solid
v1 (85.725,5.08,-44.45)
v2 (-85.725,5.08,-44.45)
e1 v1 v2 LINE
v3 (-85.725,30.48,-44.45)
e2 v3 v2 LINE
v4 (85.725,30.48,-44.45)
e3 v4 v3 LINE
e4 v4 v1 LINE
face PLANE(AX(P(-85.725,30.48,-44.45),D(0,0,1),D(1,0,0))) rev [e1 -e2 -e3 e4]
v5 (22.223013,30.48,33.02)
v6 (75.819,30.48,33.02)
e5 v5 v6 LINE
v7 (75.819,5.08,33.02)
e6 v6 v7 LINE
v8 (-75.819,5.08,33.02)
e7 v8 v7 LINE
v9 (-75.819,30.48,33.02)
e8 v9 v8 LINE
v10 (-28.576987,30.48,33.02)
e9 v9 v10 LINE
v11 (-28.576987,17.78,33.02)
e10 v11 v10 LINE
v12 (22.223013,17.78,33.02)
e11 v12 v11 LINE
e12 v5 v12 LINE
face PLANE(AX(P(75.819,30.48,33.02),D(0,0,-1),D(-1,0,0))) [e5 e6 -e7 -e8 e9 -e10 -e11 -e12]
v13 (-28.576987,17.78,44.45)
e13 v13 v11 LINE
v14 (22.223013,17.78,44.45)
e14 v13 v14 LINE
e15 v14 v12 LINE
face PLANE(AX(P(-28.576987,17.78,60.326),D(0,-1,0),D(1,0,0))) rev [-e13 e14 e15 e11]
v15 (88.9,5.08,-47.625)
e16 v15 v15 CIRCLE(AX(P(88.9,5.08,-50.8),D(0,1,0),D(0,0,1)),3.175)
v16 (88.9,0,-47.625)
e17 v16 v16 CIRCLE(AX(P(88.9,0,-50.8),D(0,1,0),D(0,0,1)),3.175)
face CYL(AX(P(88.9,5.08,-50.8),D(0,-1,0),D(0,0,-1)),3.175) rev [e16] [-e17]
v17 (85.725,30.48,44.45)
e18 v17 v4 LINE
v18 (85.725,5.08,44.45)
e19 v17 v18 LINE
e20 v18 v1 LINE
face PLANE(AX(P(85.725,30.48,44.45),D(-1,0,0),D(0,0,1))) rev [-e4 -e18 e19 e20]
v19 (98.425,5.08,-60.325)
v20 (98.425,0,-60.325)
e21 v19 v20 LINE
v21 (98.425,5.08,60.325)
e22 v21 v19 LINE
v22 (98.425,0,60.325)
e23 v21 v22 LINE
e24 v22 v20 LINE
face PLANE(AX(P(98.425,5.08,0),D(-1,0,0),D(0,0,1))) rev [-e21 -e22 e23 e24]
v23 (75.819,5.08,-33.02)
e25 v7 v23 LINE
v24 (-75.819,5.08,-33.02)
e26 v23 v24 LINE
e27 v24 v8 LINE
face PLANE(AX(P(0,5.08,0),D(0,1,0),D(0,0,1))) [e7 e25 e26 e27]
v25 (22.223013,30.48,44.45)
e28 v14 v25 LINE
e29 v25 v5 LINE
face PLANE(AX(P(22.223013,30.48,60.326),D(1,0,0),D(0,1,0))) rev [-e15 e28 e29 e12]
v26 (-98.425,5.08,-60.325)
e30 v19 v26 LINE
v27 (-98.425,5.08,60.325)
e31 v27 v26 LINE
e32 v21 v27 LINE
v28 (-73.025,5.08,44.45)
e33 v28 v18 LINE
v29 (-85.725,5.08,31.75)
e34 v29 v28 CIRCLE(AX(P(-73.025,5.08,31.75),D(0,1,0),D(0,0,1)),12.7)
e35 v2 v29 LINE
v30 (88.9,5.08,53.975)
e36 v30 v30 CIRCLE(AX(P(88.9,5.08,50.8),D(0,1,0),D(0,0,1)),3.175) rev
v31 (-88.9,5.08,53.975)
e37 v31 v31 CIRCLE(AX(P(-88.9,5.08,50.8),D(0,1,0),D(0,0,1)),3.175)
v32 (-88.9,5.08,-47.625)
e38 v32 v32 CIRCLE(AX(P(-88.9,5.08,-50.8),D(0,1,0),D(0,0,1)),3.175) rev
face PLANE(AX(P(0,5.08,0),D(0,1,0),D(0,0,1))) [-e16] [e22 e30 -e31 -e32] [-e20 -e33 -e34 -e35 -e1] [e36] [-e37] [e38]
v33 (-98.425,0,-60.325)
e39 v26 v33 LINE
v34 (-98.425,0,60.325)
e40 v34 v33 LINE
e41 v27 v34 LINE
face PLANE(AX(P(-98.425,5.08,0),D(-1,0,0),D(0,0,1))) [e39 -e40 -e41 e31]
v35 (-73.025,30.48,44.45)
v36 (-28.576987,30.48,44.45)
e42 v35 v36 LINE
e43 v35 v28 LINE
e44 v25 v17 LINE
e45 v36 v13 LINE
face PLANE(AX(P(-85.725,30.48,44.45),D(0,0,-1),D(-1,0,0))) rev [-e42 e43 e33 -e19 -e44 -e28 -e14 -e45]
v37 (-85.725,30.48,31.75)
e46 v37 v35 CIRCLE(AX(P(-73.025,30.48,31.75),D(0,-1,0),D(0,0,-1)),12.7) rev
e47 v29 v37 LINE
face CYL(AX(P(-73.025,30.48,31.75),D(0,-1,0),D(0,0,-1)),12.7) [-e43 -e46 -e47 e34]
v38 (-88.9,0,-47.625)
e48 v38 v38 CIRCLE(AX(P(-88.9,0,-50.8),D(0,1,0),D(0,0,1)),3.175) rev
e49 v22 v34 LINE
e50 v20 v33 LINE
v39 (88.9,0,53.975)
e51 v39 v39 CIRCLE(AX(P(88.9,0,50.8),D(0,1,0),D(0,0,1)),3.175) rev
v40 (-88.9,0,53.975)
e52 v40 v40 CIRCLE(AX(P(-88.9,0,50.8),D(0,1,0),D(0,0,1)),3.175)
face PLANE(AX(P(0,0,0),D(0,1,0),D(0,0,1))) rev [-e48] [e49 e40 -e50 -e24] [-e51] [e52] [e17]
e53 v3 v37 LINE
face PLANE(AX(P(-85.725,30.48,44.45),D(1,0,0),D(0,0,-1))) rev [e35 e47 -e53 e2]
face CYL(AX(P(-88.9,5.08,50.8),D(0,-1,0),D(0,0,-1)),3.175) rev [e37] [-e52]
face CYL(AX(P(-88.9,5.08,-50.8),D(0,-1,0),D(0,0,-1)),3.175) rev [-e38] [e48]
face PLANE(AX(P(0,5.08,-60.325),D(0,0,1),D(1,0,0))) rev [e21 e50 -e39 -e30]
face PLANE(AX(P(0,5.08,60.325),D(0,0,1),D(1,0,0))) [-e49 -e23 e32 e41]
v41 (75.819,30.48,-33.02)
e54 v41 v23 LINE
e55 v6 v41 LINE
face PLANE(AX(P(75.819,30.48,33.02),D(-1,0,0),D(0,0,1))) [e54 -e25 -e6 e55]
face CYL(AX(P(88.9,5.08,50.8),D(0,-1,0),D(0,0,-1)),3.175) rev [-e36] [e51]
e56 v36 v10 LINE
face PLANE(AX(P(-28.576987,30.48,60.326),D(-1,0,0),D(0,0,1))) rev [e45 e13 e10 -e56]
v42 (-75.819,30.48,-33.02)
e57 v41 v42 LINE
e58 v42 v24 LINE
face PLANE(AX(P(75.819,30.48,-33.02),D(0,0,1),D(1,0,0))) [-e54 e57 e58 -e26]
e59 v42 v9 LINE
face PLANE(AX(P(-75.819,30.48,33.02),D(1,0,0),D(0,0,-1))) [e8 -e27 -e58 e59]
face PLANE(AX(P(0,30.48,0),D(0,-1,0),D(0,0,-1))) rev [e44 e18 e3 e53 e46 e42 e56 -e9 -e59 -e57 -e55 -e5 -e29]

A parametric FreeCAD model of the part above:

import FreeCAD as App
import Part
import Sketcher

V = App.Vector
Q = App.Units.Quantity


def edges_at(feature, points):
    """Names of the edges that pass closest to the given points."""
    edges = feature.Shape.Edges
    near = lambda p: min(range(len(edges)), key=lambda i: edges[i].distToShape(Part.Vertex(*p))[0])
    return sorted({f"Edge{near(p) + 1}" for p in points})


def add_polygon(sketch, points):
    """Adds a closed chain of lines whose ends are joined by coincident constraints."""
    first, n = sketch.GeometryCount, len(points)
    for a, b in zip(points, points[1:] + points[:1]):
        sketch.addGeometry(Part.LineSegment(App.Vector(*a, 0), App.Vector(*b, 0)), False)
    for i in range(n):
        sketch.addConstraint(Sketcher.Constraint("Coincident", first + i, 2, first + (i + 1) % n, 1))

doc = App.newDocument("Part")
body = doc.addObject("PartDesign::Body", "Body")

sketch1 = doc.addObject("Sketcher::SketchObject", "Sketch")
body.addObject(sketch1)
sketch1.AttachmentSupport = (doc.XZ_Plane, [""])
sketch1.MapMode = "FlatFace"
add_polygon(sketch1, [(-98.425, -60.325), (-98.425, 60.325), (98.425, 60.325), (98.425, -60.325)])
sketch1.addGeometry(Part.Circle(V(-88.9, 50.8, 0), V(0, 0, 1), 3.175), False)
sketch1.addGeometry(Part.Circle(V(88.9, 50.8, 0), V(0, 0, 1), 3.175), False)
sketch1.addGeometry(Part.Circle(V(-88.9, -50.8, 0), V(0, 0, 1), 3.175), False)
sketch1.addGeometry(Part.Circle(V(88.9, -50.8, 0), V(0, 0, 1), 3.175), False)
sketch1.addConstraint([
    Sketcher.Constraint("Vertical", 0),
    Sketcher.Constraint("Horizontal", 1),
    Sketcher.Constraint("Vertical", 2),
    Sketcher.Constraint("Horizontal", 3),
    Sketcher.Constraint("Equal", 4, 5),
    Sketcher.Constraint("Equal", 5, 6),
    Sketcher.Constraint("Equal", 6, 7),
    Sketcher.Constraint("Symmetric", 5, 3, 6, 3, -1, 1),
    Sketcher.Constraint("Symmetric", 4, 3, 7, 3, -1, 1),
    Sketcher.Constraint("Symmetric", 0, 2, 2, 2, -1, 1),
    Sketcher.Constraint("Symmetric", 4, 3, 5, 3, -2),
    Sketcher.Constraint("Diameter", 4, Q("0.25 in")),
    Sketcher.Constraint("DistanceY", -1, 1, 4, 3, Q("2 in")),
    Sketcher.Constraint("DistanceX", 4, 3, 5, 3, Q("7 in")),
    Sketcher.Constraint("DistanceX", 1, 1, 1, 2, Q("7.75 in")),
    Sketcher.Constraint("DistanceY", 0, 1, 0, 2, Q("4.75 in")),
])
pad1 = doc.addObject("PartDesign::Pad", "Pad")
body.addObject(pad1)
pad1.Profile = sketch1
pad1.Length = Q("0.2 in")
pad1.Reversed = True

sketch2 = doc.addObject("Sketcher::SketchObject", "Sketch001")
body.addObject(sketch2)
sketch2.AttachmentSupport = (doc.XZ_Plane, [""])
sketch2.MapMode = "FlatFace"
sketch2.AttachmentOffset = App.Placement(V(0, 0, -0.2 * 25.4), App.Rotation())
add_polygon(sketch2, [(-85.725, -44.45), (-85.725, 44.45), (85.725, 44.45), (85.725, -44.45)])
add_polygon(sketch2, [(75.819, 33.02), (-75.819, 33.02), (-75.819, -33.02), (75.819, -33.02)])
sketch2.addConstraint([
    Sketcher.Constraint("Vertical", 0),
    Sketcher.Constraint("Horizontal", 1),
    Sketcher.Constraint("Vertical", 2),
    Sketcher.Constraint("Horizontal", 3),
    Sketcher.Constraint("Horizontal", 4),
    Sketcher.Constraint("Vertical", 5),
    Sketcher.Constraint("Horizontal", 6),
    Sketcher.Constraint("Vertical", 7),
    Sketcher.Constraint("Symmetric", 0, 2, 2, 2, -1, 1),
    Sketcher.Constraint("Symmetric", 4, 2, 6, 2, -1, 1),
    Sketcher.Constraint("DistanceY", 0, 1, 0, 2, Q("3.5 in")),
    Sketcher.Constraint("DistanceY", 5, 2, 5, 1, Q("2.6 in")),
    Sketcher.Constraint("DistanceX", 1, 1, 1, 2, Q("6.75 in")),
    Sketcher.Constraint("DistanceX", 4, 2, 4, 1, Q("5.97 in")),
])
pad2 = doc.addObject("PartDesign::Pad", "Pad001")
body.addObject(pad2)
pad2.Profile = sketch2
pad2.Length = Q("1 in")
pad2.Reversed = True
doc.recompute()

fillet = doc.addObject("PartDesign::Fillet", "Fillet")
body.addObject(fillet)
fillet.Base = (pad2, edges_at(pad2, [(-85.725, 17.78, 44.45)]))
fillet.Radius = Q("0.5 in")

sketch3 = doc.addObject("Sketcher::SketchObject", "Sketch002")
body.addObject(sketch3)
sketch3.AttachmentSupport = (doc.XY_Plane, [""])
sketch3.MapMode = "FlatFace"
sketch3.AttachmentOffset = App.Placement(V(0, 0, 1.3 * 25.4), App.Rotation())
add_polygon(sketch3, [(22.223013, 30.48), (22.223013, 17.78), (-28.576987, 17.78), (-28.576987, 30.48)])
sketch3.addConstraint([
    Sketcher.Constraint("Vertical", 0),
    Sketcher.Constraint("Horizontal", 1),
    Sketcher.Constraint("Vertical", 2),
    Sketcher.Constraint("Horizontal", 3),
    Sketcher.Constraint("DistanceX", 1, 2, 1, 1, Q("2 in")),
    Sketcher.Constraint("DistanceY", 0, 2, 0, 1, Q("0.5 in")),
    Sketcher.Constraint("DistanceY", -1, 1, 0, 2, Q("0.7 in")),
    Sketcher.Constraint("DistanceX", -1, 1, 0, 2, 22.223013),
])
pocket1 = doc.addObject("PartDesign::Pocket", "Pocket")
body.addObject(pocket1)
pocket1.Profile = sketch3
pocket1.Type = "UpToFirst"
pocket1.Reversed = True

doc.recompute()
